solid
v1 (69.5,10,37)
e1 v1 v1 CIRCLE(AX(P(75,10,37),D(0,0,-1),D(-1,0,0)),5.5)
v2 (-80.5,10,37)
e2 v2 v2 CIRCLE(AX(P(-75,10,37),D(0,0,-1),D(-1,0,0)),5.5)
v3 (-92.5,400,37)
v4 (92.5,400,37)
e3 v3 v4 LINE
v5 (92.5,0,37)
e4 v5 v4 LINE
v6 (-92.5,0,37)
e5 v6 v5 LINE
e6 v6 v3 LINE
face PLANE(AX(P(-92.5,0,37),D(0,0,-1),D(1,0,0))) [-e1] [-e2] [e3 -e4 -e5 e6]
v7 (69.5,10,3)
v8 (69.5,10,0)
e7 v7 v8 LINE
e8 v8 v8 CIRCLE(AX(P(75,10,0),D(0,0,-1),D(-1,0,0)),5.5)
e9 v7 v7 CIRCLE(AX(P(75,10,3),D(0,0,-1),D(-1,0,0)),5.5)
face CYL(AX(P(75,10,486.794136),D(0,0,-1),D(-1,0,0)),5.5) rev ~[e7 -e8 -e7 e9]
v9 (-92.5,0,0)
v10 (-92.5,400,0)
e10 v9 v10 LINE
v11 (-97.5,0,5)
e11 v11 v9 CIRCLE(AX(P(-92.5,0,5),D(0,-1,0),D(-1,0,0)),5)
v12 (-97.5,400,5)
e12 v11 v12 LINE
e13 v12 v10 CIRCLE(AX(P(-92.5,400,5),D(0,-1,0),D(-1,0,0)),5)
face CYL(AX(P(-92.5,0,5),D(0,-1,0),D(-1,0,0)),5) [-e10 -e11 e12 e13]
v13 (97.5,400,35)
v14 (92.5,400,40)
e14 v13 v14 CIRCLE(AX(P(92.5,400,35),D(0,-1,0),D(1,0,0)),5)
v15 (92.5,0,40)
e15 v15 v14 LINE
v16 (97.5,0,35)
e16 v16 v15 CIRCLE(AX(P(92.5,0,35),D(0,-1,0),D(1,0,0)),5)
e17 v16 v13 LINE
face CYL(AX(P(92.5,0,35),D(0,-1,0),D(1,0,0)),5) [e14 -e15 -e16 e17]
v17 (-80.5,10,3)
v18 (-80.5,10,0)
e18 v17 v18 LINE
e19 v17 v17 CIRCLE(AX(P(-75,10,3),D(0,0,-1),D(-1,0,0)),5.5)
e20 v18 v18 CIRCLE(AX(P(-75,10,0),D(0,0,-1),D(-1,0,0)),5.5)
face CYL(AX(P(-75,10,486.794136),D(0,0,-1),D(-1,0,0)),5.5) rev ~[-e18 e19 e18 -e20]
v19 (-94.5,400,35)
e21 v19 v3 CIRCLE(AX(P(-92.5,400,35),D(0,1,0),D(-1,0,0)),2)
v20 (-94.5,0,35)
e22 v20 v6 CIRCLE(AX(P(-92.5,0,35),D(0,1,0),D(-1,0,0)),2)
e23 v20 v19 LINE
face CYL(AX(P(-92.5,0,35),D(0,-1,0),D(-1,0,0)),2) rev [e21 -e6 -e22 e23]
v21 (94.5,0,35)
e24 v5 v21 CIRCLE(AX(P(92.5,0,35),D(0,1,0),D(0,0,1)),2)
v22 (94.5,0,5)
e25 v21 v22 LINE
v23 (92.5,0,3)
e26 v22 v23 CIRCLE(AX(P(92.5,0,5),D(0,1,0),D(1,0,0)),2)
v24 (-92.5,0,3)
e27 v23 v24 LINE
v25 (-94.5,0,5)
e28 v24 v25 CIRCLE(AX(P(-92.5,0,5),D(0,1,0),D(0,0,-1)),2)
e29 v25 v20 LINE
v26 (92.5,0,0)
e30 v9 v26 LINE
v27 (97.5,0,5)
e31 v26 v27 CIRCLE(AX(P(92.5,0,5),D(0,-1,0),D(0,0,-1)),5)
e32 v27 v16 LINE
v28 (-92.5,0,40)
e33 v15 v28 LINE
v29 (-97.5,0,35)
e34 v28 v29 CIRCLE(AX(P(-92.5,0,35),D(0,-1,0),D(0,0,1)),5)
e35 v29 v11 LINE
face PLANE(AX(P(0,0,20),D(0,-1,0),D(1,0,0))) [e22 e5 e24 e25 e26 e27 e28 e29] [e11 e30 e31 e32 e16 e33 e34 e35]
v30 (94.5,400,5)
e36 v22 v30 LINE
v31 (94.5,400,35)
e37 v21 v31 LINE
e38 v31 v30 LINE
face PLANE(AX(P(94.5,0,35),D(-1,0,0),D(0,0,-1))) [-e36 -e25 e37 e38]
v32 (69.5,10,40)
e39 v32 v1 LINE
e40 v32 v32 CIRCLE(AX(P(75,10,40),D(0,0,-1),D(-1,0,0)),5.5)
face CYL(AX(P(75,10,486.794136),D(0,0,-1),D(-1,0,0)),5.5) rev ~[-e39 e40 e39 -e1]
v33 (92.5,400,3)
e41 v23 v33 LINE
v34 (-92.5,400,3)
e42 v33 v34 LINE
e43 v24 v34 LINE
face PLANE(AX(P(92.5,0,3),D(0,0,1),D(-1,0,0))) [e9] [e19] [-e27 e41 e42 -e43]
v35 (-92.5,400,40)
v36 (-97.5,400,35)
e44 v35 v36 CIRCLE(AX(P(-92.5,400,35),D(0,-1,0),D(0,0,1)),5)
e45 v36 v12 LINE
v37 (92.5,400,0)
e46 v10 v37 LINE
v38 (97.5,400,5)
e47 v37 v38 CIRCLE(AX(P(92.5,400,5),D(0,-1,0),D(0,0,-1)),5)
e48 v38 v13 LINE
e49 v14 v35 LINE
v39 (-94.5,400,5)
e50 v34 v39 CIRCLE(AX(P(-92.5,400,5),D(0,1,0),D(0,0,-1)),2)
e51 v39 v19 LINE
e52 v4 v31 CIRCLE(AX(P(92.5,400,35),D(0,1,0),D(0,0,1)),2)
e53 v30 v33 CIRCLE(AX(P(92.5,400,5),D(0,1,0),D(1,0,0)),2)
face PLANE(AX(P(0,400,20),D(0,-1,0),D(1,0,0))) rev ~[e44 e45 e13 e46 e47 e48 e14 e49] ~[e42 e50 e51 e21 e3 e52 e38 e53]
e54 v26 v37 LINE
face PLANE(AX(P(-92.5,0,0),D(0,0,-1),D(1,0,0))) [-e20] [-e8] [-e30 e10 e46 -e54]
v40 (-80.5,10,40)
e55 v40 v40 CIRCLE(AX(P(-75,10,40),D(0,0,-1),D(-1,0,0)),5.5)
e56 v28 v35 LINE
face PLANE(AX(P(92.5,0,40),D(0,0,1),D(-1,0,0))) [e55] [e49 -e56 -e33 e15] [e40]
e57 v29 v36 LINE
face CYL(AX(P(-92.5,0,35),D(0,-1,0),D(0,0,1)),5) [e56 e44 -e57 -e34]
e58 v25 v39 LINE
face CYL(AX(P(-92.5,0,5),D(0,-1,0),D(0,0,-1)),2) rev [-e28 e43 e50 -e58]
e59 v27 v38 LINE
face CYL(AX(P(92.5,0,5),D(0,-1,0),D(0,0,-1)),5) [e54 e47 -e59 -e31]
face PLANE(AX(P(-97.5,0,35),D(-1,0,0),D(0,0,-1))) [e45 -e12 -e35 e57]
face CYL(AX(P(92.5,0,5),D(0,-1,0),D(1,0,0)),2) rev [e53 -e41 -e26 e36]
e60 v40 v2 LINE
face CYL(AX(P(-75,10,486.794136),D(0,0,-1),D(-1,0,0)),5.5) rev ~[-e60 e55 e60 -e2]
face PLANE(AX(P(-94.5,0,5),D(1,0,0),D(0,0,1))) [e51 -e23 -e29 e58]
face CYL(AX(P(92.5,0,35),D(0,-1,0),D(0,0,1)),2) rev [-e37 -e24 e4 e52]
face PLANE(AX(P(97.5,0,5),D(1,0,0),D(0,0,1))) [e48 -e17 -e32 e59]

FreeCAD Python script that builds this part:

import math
import FreeCAD as App
import Part
import Sketcher
from FreeCAD import Vector

doc = App.newDocument("Part")
body = doc.addObject("PartDesign::Body", "Body")

# Sketch on XZ plane
sketch1 = body.newObject("Sketcher::SketchObject", "Sketch")
sketch1.AttachmentSupport = (doc.getObject("XZ_Plane"), [""])
sketch1.MapMode = "FlatFace"
sketch1.addGeometry(Part.ArcOfCircle(Part.Circle(Vector(-92.5, 5, 0), Vector(0, 0, 1), 5), math.radians(180), math.radians(270)), False)
sketch1.addGeometry(Part.LineSegment(Vector(-92.5, 0, 0), Vector(92.5, 0, 0)), False)
sketch1.addGeometry(Part.ArcOfCircle(Part.Circle(Vector(92.5, 5, 0), Vector(0, 0, 1), 5), math.radians(-90), math.radians(0)), False)
sketch1.addGeometry(Part.LineSegment(Vector(97.5, 5, 0), Vector(97.5, 35, 0)), False)
sketch1.addGeometry(Part.ArcOfCircle(Part.Circle(Vector(92.5, 35, 0), Vector(0, 0, 1), 5), math.radians(0), math.radians(90)), False)
sketch1.addGeometry(Part.LineSegment(Vector(92.5, 40, 0), Vector(-92.5, 40, 0)), False)
sketch1.addGeometry(Part.ArcOfCircle(Part.Circle(Vector(-92.5, 35, 0), Vector(0, 0, 1), 5), math.radians(90), math.radians(180)), False)
sketch1.addGeometry(Part.LineSegment(Vector(-97.5, 35, 0), Vector(-97.5, 5, 0)), False)
sketch1.addGeometry(Part.LineSegment(Vector(-94.5, 5, 0), Vector(-94.5, 35, 0)), False)
sketch1.addGeometry(Part.ArcOfCircle(Part.Circle(Vector(-92.5, 35, 0), Vector(0, 0, 1), 2), math.radians(90), math.radians(180)), False)
sketch1.addGeometry(Part.LineSegment(Vector(-92.5, 37, 0), Vector(92.5, 37, 0)), False)
sketch1.addGeometry(Part.ArcOfCircle(Part.Circle(Vector(92.5, 35, 0), Vector(0, 0, 1), 2), math.radians(0), math.radians(90)), False)
sketch1.addGeometry(Part.LineSegment(Vector(94.5, 35, 0), Vector(94.5, 5, 0)), False)
sketch1.addGeometry(Part.ArcOfCircle(Part.Circle(Vector(92.5, 5, 0), Vector(0, 0, 1), 2), math.radians(-90), math.radians(0)), False)
sketch1.addGeometry(Part.LineSegment(Vector(92.5, 3, 0), Vector(-92.5, 3, 0)), False)
sketch1.addGeometry(Part.ArcOfCircle(Part.Circle(Vector(-92.5, 5, 0), Vector(0, 0, 1), 2), math.radians(180), math.radians(270)), False)
sketch1.addConstraint(Sketcher.Constraint("Tangent", 0, 2, 1, 1))
sketch1.addConstraint(Sketcher.Constraint("Tangent", 1, 2, 2, 1))
sketch1.addConstraint(Sketcher.Constraint("Tangent", 2, 2, 3, 1))
sketch1.addConstraint(Sketcher.Constraint("Tangent", 3, 2, 4, 1))
sketch1.addConstraint(Sketcher.Constraint("Tangent", 4, 2, 5, 1))
sketch1.addConstraint(Sketcher.Constraint("Tangent", 5, 2, 6, 1))
sketch1.addConstraint(Sketcher.Constraint("Tangent", 6, 2, 7, 1))
sketch1.addConstraint(Sketcher.Constraint("Tangent", 7, 2, 0, 1))
sketch1.addConstraint(Sketcher.Constraint("Tangent", 8, 2, 9, 2))
sketch1.addConstraint(Sketcher.Constraint("Tangent", 9, 1, 10, 1))
sketch1.addConstraint(Sketcher.Constraint("Tangent", 10, 2, 11, 2))
sketch1.addConstraint(Sketcher.Constraint("Tangent", 11, 1, 12, 1))
sketch1.addConstraint(Sketcher.Constraint("Tangent", 12, 2, 13, 2))
sketch1.addConstraint(Sketcher.Constraint("Tangent", 13, 1, 14, 1))
sketch1.addConstraint(Sketcher.Constraint("Tangent", 14, 2, 15, 2))
sketch1.addConstraint(Sketcher.Constraint("Tangent", 15, 1, 8, 1))
sketch1.addConstraint(Sketcher.Constraint("Horizontal", 1))
sketch1.addConstraint(Sketcher.Constraint("Vertical", 3))
sketch1.addConstraint(Sketcher.Constraint("Horizontal", 5))
sketch1.addConstraint(Sketcher.Constraint("Vertical", 7))
sketch1.addConstraint(Sketcher.Constraint("Vertical", 8))
sketch1.addConstraint(Sketcher.Constraint("Horizontal", 10))
sketch1.addConstraint(Sketcher.Constraint("Vertical", 12))
sketch1.addConstraint(Sketcher.Constraint("Horizontal", 14))
sketch1.addConstraint(Sketcher.Constraint("Coincident", 9, 3, 6, 3))
sketch1.addConstraint(Sketcher.Constraint("Coincident", 11, 3, 4, 3))
sketch1.addConstraint(Sketcher.Constraint("Coincident", 13, 3, 2, 3))
sketch1.addConstraint(Sketcher.Constraint("Equal", 0, 2))
sketch1.addConstraint(Sketcher.Constraint("Equal", 2, 4))
sketch1.addConstraint(Sketcher.Constraint("Equal", 4, 6))
sketch1.addConstraint(Sketcher.Constraint("Equal", 13, 15))
sketch1.addConstraint(Sketcher.Constraint("Symmetric", 0, 2, 1, 2, -1, 1))
sketch1.addConstraint(Sketcher.Constraint("Radius", 0, 5.0))
sketch1.addConstraint(Sketcher.Constraint("Radius", 9, 2.0))
sketch1.addConstraint(Sketcher.Constraint("DistanceX", 1, 1, 1, 2, 185.0))
sketch1.addConstraint(Sketcher.Constraint("DistanceY", 3, 1, 3, 2, 30.0))
pad1 = body.newObject("PartDesign::Pad", "Pad")
pad1.Profile = sketch1
pad1.Length = 400
pad1.Reversed = True

# Sketch on XY plane
sketch2 = body.newObject("Sketcher::SketchObject", "Sketch001")
sketch2.AttachmentSupport = (doc.getObject("XY_Plane"), [""])
sketch2.MapMode = "FlatFace"
sketch2.AttachmentOffset = App.Placement(Vector(0, 0, 40), App.Rotation())
sketch2.addGeometry(Part.Circle(Vector(-75, 10, 0), Vector(0, 0, 1), 6), False)
sketch2.addGeometry(Part.Circle(Vector(75, 10, 0), Vector(0, 0, 1), 6), False)
sketch2.addConstraint(Sketcher.Constraint("Equal", 0, 1))
sketch2.addConstraint(Sketcher.Constraint("Symmetric", 0, 3, 1, 3, -2))
sketch2.addConstraint(Sketcher.Constraint("Diameter", 0, 11.0))
sketch2.addConstraint(Sketcher.Constraint("DistanceX", 0, 3, -1, 1, 75.0))
sketch2.addConstraint(Sketcher.Constraint("DistanceY", -1, 1, 0, 3, 10.0))
doc.recompute()
hole = body.newObject("PartDesign::Hole", "Hole")
hole.Profile = sketch2
hole.ThreadType = "None"
hole.Diameter = 11
hole.DepthType = "ThroughAll"

doc.recompute()
